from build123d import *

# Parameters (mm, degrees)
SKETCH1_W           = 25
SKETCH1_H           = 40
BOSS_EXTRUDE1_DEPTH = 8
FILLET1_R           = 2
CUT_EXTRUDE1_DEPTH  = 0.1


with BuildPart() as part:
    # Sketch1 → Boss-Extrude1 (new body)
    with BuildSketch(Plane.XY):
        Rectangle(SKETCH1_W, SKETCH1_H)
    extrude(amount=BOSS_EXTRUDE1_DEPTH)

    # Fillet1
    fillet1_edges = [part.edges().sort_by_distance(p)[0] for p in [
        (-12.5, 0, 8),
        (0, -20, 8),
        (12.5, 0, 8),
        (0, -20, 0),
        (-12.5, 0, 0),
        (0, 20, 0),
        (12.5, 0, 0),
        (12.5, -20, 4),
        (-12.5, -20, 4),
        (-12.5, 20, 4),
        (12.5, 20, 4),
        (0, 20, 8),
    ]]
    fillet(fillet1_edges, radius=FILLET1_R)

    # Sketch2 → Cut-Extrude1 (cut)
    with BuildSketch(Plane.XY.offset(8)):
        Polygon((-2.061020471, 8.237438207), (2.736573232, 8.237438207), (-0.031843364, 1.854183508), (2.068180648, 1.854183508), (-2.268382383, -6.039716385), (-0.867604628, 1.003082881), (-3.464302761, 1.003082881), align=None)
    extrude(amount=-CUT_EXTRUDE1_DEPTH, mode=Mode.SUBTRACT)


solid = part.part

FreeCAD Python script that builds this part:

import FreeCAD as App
import Part
import Sketcher

doc = App.newDocument("Part")
body = doc.addObject("PartDesign::Body", "Body")

# Sketch on XY plane
sketch1 = doc.addObject("Sketcher::SketchObject", "Sketch")
body.addObject(sketch1)
sketch1.AttachmentSupport = (doc.XY_Plane, [""])
sketch1.MapMode = "FlatFace"
sketch1.addGeometry(Part.LineSegment(App.Vector(-12.5, 20, 0), App.Vector(-12.5, -20, 0)), False)
sketch1.addGeometry(Part.LineSegment(App.Vector(-12.5, -20, 0), App.Vector(12.5, -20, 0)), False)
sketch1.addGeometry(Part.LineSegment(App.Vector(12.5, -20, 0), App.Vector(12.5, 20, 0)), False)
sketch1.addGeometry(Part.LineSegment(App.Vector(12.5, 20, 0), App.Vector(-12.5, 20, 0)), False)
sketch1.addConstraint(Sketcher.Constraint("Coincident", 0, 2, 1, 1))
sketch1.addConstraint(Sketcher.Constraint("Coincident", 1, 2, 2, 1))
sketch1.addConstraint(Sketcher.Constraint("Coincident", 2, 2, 3, 1))
sketch1.addConstraint(Sketcher.Constraint("Coincident", 3, 2, 0, 1))
sketch1.addConstraint(Sketcher.Constraint("Vertical", 0))
sketch1.addConstraint(Sketcher.Constraint("Horizontal", 1))
sketch1.addConstraint(Sketcher.Constraint("Vertical", 2))
sketch1.addConstraint(Sketcher.Constraint("Horizontal", 3))
sketch1.addConstraint(Sketcher.Constraint("Symmetric", 0, 2, 2, 2, -1, 1))
sketch1.addConstraint(Sketcher.Constraint("DistanceX", 1, 1, 1, 2, 25.0))
sketch1.addConstraint(Sketcher.Constraint("DistanceY", 0, 2, 0, 1, 40.0))
pad1 = doc.addObject("PartDesign::Pad", "Pad")
body.addObject(pad1)
pad1.Profile = sketch1
pad1.Length = 8
doc.recompute()

fillet = doc.addObject("PartDesign::Fillet", "Fillet")
body.addObject(fillet)
fillet.Base = (pad1, ["Edge1"])
fillet.UseAllEdges = True
fillet.Radius = 2

# Sketch on XY plane
sketch2 = doc.addObject("Sketcher::SketchObject", "Sketch001")
body.addObject(sketch2)
sketch2.AttachmentSupport = (doc.XY_Plane, [""])
sketch2.MapMode = "FlatFace"
sketch2.AttachmentOffset = App.Placement(App.Vector(0, 0, 8), App.Rotation())
sketch2.addGeometry(Part.LineSegment(App.Vector(2.736573, 8.237438, 0), App.Vector(-2.06102, 8.237438, 0)), False)
sketch2.addGeometry(Part.LineSegment(App.Vector(-2.06102, 8.237438, 0), App.Vector(-3.464303, 1.003083, 0)), False)
sketch2.addGeometry(Part.LineSegment(App.Vector(-3.464303, 1.003083, 0), App.Vector(-0.867605, 1.003083, 0)), False)
sketch2.addGeometry(Part.LineSegment(App.Vector(-0.867605, 1.003083, 0), App.Vector(-2.268382, -6.039716, 0)), False)
sketch2.addGeometry(Part.LineSegment(App.Vector(-2.268382, -6.039716, 0), App.Vector(2.068181, 1.854184, 0)), False)
sketch2.addGeometry(Part.LineSegment(App.Vector(2.068181, 1.854184, 0), App.Vector(-0.031843, 1.854184, 0)), False)
sketch2.addGeometry(Part.LineSegment(App.Vector(-0.031843, 1.854184, 0), App.Vector(2.736573, 8.237438, 0)), False)
sketch2.addConstraint(Sketcher.Constraint("Coincident", 0, 2, 1, 1))
sketch2.addConstraint(Sketcher.Constraint("Coincident", 1, 2, 2, 1))
sketch2.addConstraint(Sketcher.Constraint("Coincident", 2, 2, 3, 1))
sketch2.addConstraint(Sketcher.Constraint("Coincident", 3, 2, 4, 1))
sketch2.addConstraint(Sketcher.Constraint("Coincident", 4, 2, 5, 1))
sketch2.addConstraint(Sketcher.Constraint("Coincident", 5, 2, 6, 1))
sketch2.addConstraint(Sketcher.Constraint("Coincident", 6, 2, 0, 1))
sketch2.addConstraint(Sketcher.Constraint("Horizontal", 0))
sketch2.addConstraint(Sketcher.Constraint("Horizontal", 2))
sketch2.addConstraint(Sketcher.Constraint("Horizontal", 5))
sketch2.addConstraint(Sketcher.Constraint("DistanceX", 2, 1, 2, 2, 2.596698))
sketch2.addConstraint(Sketcher.Constraint("Distance", 1, 7.369199))
sketch2.addConstraint(Sketcher.Constraint("DistanceY", 3, 2, 1, 2, 7.042799))
sketch2.addConstraint(Sketcher.Constraint("DistanceY", 2, 2, 4, 2, 0.851101))
sketch2.addConstraint(Sketcher.Constraint("DistanceX", 0, 2, 4, 2, 4.129201))
sketch2.addConstraint(Sketcher.Constraint("DistanceX", 0, 2, 0, 1, 4.797594))
sketch2.addConstraint(Sketcher.Constraint("DistanceX", 5, 2, 5, 1, 2.100024))
sketch2.addConstraint(Sketcher.Constraint("DistanceX", 0, 2, -1, 1, 2.06102))
sketch2.addConstraint(Sketcher.Constraint("DistanceY", -1, 1, 0, 2, 8.237438))
sketch2.addConstraint(Sketcher.Constraint("DistanceX", 1, 2, 3, 2, 1.19592))
sketch2.addConstraint(Sketcher.Constraint("DistanceX", 3, 2, 0, 2, 0.207362))
pocket1 = doc.addObject("PartDesign::Pocket", "Pocket")
body.addObject(pocket1)
pocket1.Profile = sketch2
pocket1.Length = 0.1

doc.recompute()
